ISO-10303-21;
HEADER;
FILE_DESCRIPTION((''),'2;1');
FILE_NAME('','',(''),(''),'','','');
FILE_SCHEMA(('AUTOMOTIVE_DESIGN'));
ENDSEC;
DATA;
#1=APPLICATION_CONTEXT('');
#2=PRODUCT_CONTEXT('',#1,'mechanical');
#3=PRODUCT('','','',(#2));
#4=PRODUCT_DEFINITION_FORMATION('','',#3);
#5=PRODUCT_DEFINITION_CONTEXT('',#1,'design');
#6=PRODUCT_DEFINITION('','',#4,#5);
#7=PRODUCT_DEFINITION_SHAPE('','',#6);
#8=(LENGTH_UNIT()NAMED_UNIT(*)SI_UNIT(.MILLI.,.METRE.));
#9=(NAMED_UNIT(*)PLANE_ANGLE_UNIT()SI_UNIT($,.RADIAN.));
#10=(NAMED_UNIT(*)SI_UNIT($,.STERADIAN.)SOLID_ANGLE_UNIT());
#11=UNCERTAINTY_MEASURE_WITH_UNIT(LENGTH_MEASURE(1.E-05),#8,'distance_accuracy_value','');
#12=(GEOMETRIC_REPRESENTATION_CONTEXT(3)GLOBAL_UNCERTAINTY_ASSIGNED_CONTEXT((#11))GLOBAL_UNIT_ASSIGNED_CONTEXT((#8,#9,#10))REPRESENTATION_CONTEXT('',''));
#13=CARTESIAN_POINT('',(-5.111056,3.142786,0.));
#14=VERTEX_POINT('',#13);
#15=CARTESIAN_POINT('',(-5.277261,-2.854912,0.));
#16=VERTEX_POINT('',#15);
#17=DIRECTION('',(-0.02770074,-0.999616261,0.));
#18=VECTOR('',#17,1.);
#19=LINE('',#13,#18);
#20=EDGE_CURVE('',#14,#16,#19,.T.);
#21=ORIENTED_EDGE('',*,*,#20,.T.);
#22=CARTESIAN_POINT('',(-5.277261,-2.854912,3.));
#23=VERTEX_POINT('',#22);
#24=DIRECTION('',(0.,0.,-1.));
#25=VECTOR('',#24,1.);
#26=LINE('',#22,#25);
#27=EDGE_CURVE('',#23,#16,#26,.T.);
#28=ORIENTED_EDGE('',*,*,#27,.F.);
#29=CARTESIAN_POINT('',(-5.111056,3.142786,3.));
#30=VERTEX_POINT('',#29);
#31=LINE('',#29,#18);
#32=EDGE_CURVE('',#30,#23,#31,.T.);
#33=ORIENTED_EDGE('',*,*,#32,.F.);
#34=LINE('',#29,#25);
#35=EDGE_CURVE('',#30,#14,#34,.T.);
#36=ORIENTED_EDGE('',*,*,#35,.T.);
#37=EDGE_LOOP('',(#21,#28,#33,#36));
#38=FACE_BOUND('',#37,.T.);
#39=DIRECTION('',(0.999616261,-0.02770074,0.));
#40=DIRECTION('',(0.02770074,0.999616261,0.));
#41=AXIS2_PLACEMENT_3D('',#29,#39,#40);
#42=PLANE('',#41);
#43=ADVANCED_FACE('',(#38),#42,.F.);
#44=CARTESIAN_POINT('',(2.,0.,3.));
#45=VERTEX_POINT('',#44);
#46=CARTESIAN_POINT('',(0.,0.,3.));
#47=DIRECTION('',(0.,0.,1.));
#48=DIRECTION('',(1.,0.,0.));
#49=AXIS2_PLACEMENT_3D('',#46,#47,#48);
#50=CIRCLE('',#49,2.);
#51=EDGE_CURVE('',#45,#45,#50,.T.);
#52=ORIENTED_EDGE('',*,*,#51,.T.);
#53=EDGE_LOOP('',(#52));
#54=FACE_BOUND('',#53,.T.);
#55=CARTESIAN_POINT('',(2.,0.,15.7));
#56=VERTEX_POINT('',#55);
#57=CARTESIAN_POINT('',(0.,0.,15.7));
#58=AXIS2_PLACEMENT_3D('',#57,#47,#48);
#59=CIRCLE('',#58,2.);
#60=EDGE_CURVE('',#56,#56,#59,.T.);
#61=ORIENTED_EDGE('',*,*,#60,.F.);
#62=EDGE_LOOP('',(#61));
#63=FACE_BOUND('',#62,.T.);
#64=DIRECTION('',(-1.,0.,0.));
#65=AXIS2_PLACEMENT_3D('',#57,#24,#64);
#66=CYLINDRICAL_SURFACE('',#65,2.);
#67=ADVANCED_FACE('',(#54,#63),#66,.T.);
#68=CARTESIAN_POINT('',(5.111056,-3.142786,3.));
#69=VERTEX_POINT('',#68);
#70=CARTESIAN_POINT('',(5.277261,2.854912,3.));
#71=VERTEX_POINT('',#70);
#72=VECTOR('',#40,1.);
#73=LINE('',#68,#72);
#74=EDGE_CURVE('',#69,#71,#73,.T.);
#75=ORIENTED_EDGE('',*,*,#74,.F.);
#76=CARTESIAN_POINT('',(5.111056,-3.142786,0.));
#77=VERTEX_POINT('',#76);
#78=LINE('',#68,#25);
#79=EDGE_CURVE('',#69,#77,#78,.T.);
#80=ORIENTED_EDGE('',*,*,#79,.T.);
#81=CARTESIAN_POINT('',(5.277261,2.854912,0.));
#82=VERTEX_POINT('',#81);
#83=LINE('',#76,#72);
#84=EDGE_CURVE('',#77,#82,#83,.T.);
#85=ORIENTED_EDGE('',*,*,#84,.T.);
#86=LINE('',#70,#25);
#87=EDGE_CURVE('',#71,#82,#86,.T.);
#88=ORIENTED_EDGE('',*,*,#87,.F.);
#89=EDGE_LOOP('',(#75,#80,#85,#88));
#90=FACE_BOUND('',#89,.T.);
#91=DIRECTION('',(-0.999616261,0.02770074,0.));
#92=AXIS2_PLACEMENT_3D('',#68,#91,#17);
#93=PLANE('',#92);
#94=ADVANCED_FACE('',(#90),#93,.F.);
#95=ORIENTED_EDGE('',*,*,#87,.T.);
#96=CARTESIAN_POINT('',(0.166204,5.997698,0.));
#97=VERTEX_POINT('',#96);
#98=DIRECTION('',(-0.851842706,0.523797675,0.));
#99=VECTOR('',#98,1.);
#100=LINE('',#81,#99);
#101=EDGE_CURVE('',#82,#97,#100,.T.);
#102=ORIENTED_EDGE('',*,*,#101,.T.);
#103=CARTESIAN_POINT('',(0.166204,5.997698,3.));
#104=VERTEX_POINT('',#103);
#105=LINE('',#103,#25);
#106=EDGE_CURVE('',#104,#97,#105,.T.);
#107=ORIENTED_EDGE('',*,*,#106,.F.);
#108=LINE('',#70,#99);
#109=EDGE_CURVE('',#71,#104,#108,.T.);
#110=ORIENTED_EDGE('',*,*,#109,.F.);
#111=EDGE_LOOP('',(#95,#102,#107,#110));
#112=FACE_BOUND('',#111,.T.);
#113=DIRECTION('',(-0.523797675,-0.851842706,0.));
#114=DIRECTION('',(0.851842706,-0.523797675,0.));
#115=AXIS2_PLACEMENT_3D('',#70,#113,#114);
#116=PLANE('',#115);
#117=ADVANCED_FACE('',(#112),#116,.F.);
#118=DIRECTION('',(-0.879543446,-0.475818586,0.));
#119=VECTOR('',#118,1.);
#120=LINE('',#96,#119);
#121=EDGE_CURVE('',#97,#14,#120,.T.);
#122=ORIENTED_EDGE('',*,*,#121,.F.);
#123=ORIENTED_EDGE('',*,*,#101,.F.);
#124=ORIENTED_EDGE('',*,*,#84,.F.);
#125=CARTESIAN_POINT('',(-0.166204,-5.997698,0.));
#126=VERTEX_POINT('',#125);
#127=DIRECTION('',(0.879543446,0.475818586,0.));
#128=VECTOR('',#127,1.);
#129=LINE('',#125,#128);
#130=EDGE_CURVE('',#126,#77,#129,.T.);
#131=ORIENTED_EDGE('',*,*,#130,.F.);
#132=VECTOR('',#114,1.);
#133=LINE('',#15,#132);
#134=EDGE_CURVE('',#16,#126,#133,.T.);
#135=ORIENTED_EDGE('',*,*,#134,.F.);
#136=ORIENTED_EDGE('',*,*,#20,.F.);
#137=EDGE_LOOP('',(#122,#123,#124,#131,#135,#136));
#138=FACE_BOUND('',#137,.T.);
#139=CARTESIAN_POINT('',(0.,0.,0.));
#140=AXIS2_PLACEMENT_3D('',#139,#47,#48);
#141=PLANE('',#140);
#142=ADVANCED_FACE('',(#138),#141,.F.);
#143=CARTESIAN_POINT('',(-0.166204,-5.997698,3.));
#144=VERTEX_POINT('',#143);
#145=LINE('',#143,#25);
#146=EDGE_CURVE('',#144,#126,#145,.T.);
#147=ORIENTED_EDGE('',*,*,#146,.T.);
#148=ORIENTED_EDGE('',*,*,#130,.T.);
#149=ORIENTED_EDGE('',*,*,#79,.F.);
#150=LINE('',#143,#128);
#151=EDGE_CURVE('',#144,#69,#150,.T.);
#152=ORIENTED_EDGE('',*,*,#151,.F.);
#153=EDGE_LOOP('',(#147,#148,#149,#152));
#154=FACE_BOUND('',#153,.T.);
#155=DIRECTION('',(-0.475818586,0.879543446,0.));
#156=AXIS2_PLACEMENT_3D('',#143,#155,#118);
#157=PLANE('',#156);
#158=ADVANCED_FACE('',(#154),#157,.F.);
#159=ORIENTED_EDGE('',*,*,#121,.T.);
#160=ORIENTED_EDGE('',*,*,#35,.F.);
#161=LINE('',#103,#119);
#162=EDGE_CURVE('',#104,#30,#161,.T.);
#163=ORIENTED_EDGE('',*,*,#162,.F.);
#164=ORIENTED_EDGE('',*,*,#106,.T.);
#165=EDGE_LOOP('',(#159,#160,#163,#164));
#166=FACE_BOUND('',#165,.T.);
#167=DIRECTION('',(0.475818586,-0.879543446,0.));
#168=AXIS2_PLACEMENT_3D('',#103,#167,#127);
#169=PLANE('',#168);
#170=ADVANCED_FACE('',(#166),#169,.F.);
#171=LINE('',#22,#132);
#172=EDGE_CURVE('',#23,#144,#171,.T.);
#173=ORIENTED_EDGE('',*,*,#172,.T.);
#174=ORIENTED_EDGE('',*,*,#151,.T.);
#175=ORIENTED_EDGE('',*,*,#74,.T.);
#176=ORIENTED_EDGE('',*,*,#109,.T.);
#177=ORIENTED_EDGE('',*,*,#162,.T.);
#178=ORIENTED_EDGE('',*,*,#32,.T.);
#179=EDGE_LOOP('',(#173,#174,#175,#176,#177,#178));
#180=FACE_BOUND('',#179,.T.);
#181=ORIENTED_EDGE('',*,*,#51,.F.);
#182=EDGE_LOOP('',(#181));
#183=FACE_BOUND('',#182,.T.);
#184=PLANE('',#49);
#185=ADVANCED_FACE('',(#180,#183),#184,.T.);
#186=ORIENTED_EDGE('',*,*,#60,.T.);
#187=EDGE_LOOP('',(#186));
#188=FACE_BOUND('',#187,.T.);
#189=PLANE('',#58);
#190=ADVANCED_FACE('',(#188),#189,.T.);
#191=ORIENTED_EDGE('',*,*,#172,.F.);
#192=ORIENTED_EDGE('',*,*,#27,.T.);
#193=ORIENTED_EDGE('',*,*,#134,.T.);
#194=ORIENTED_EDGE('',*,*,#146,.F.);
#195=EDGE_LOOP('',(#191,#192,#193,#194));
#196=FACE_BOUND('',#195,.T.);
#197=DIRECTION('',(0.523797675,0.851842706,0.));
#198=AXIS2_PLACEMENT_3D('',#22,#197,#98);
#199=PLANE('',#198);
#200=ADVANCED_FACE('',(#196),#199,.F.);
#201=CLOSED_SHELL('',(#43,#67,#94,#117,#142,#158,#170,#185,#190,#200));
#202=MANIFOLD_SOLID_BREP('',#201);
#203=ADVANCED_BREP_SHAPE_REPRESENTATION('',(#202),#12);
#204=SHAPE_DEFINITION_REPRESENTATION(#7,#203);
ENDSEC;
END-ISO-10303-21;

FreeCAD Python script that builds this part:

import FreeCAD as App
import Part
import Sketcher
from FreeCAD import Vector


def add_polygon(sketch, points):
    """Adds a closed chain of lines whose ends are joined by coincident constraints."""
    first, n = sketch.GeometryCount, len(points)
    for a, b in zip(points, points[1:] + points[:1]):
        sketch.addGeometry(Part.LineSegment(App.Vector(*a, 0), App.Vector(*b, 0)), False)
    for i in range(n):
        sketch.addConstraint(Sketcher.Constraint("Coincident", first + i, 2, first + (i + 1) % n, 1))

doc = App.newDocument("Part")
body = doc.addObject("PartDesign::Body", "Body")

# Sketch on XY plane
sketch1 = body.newObject("Sketcher::SketchObject", "Sketch")
sketch1.AttachmentSupport = (doc.getObject("XY_Plane"), [""])
sketch1.MapMode = "FlatFace"
add_polygon(sketch1, [(5.277261, 2.854912), (0.166204, 5.997698), (-5.111056, 3.142786), (-5.277261, -2.854912), (-0.166204, -5.997698), (5.111056, -3.142786)])  # lines 0-5
sketch1.addConstraint(Sketcher.Constraint("Symmetric", 0, 2, 3, 2, -1, 1))
sketch1.addConstraint(Sketcher.Constraint("Symmetric", 1, 2, 4, 2, -1, 1))
sketch1.addConstraint(Sketcher.Constraint("Symmetric", 2, 2, 5, 2, -1, 1))
sketch1.addConstraint(Sketcher.Constraint("Equal", 0, 1))
sketch1.addConstraint(Sketcher.Constraint("Equal", 1, 2))
sketch1.addConstraint(Sketcher.Constraint("Distance", 0, 6.0))
sketch1.addConstraint(Sketcher.Constraint("DistanceX", 2, 2, -1, 1, 5.277261))
sketch1.addConstraint(Sketcher.Constraint("DistanceY", 2, 2, -1, 1, 2.854912))
sketch1.addConstraint(Sketcher.Constraint("DistanceX", 1, 2, 0, 2, 5.277261))
pad1 = body.newObject("PartDesign::Pad", "Pad")
pad1.Profile = sketch1
pad1.Length = 3

# Sketch on XY plane
sketch2 = body.newObject("Sketcher::SketchObject", "Sketch001")
sketch2.AttachmentSupport = (doc.getObject("XY_Plane"), [""])
sketch2.MapMode = "FlatFace"
sketch2.AttachmentOffset = App.Placement(Vector(0, 0, 3), App.Rotation())
sketch2.addGeometry(Part.Circle(Vector(0, 0, 0), Vector(0, 0, 1), 2), False)
sketch2.addConstraint(Sketcher.Constraint("Coincident", 0, 3, -1, 1))
sketch2.addConstraint(Sketcher.Constraint("Diameter", 0, 4.0))
pad2 = body.newObject("PartDesign::Pad", "Pad001")
pad2.Profile = sketch2
pad2.Length = 12.7

doc.recompute()
